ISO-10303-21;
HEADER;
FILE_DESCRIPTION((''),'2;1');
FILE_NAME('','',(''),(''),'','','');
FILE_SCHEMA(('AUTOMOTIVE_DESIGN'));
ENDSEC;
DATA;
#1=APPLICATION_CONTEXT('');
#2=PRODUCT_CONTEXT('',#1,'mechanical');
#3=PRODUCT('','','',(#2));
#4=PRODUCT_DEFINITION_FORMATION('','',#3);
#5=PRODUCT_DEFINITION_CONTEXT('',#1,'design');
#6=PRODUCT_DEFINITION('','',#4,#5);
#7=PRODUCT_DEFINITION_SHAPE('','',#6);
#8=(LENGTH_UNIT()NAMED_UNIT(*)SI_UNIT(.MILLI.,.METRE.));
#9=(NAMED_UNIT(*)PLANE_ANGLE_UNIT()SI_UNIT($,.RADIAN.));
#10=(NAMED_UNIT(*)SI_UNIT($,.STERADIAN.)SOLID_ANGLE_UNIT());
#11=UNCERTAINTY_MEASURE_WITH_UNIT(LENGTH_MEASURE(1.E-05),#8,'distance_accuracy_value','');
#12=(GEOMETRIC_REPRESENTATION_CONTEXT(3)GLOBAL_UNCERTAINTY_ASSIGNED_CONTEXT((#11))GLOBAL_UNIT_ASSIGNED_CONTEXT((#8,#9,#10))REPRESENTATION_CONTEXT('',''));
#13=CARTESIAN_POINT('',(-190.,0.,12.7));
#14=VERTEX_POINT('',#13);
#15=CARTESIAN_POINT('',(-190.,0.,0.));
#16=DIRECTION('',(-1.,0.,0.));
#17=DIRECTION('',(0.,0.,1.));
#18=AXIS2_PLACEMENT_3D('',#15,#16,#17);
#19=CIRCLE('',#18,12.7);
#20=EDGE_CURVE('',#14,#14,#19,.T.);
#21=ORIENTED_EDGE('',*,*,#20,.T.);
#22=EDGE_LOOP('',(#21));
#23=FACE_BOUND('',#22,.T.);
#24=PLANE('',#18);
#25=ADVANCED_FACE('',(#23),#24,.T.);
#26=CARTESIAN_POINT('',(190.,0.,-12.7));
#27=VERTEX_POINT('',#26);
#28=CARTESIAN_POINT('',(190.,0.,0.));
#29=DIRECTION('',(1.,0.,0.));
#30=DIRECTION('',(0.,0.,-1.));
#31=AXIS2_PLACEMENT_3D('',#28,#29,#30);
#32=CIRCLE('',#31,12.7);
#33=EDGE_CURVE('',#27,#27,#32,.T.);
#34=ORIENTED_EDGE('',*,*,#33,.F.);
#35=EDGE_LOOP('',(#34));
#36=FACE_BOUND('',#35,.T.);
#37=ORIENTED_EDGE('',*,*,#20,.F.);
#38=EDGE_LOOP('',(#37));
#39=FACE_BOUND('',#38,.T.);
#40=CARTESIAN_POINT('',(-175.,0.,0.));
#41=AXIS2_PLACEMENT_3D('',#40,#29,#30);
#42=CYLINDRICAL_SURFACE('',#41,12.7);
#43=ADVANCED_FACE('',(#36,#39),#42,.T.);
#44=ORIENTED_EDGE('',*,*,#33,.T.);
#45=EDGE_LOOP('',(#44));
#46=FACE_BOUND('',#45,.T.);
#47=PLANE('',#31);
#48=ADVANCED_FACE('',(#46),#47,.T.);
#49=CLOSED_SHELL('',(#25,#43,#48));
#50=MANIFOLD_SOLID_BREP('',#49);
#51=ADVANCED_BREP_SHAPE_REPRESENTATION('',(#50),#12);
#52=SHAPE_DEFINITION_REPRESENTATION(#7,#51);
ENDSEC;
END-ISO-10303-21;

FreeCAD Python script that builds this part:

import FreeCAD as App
import Part
import Sketcher
from FreeCAD import Vector
Q = App.Units.Quantity

doc = App.newDocument("Part")
params = doc.addObject("Spreadsheet::Sheet", "Params")
for row, (alias, value) in enumerate([
    ("sketch1_diameter", "25.4 mm"),
    ("pad1_length", "175 mm"),
    ("pad1_length2", "175 mm"),
    ("sketch2_diameter", "25.4 mm"),
    ("pad2_length", "15 mm"),
    ("sketch3_diameter", "25.4 mm"),
    ("pad3_length", "15 mm"),
], start=1):
    params.set(f"A{row}", alias)
    params.set(f"B{row}", "=" + value)
    params.setAlias(f"B{row}", alias)

body = doc.addObject("PartDesign::Body", "Body")

# Sketch on YZ plane
sketch1 = body.newObject("Sketcher::SketchObject", "Sketch")
sketch1.AttachmentSupport = (doc.getObject("YZ_Plane"), [""])
sketch1.MapMode = "FlatFace"
sketch1.addGeometry(Part.Circle(Vector(0, 0, 0), Vector(0, 0, 1), 13), False)
sketch1.addConstraint(Sketcher.Constraint("Coincident", 0, 3, -1, 1))
sketch1.addConstraint(Sketcher.Constraint("Diameter", 0, Q("25.4 mm")))
sketch1.setExpression("Constraints[1]", "Params.sketch1_diameter")
pad1 = body.newObject("PartDesign::Pad", "Pad")
pad1.Profile = sketch1
pad1.Type = "TwoLengths"
pad1.setExpression("Length", "Params.pad1_length")
pad1.setExpression("Length2", "Params.pad1_length2")

# Sketch on YZ plane
sketch2 = body.newObject("Sketcher::SketchObject", "Sketch001")
sketch2.AttachmentSupport = (doc.getObject("YZ_Plane"), [""])
sketch2.MapMode = "FlatFace"
sketch2.AttachmentOffset = App.Placement(Vector(0, 0, 175), App.Rotation())
sketch2.addGeometry(Part.Circle(Vector(0, 0, 0), Vector(0, 0, 1), 13), False)
sketch2.addConstraint(Sketcher.Constraint("Coincident", 0, 3, -1, 1))
sketch2.addConstraint(Sketcher.Constraint("Diameter", 0, Q("25.4 mm")))
sketch2.setExpression("Constraints[1]", "Params.sketch2_diameter")
pad2 = body.newObject("PartDesign::Pad", "Pad001")
pad2.Profile = sketch2
pad2.setExpression("Length", "Params.pad2_length")

# Sketch on YZ plane
sketch3 = body.newObject("Sketcher::SketchObject", "Sketch002")
sketch3.AttachmentSupport = (doc.getObject("YZ_Plane"), [""])
sketch3.MapMode = "FlatFace"
sketch3.AttachmentOffset = App.Placement(Vector(0, 0, -190), App.Rotation())
sketch3.addGeometry(Part.Circle(Vector(0, 0, 0), Vector(0, 0, 1), 13), False)
sketch3.addConstraint(Sketcher.Constraint("Coincident", 0, 3, -1, 1))
sketch3.addConstraint(Sketcher.Constraint("Diameter", 0, Q("25.4 mm")))
sketch3.setExpression("Constraints[1]", "Params.sketch3_diameter")
pad3 = body.newObject("PartDesign::Pad", "Pad002")
pad3.Profile = sketch3
pad3.setExpression("Length", "Params.pad3_length")

doc.recompute()
